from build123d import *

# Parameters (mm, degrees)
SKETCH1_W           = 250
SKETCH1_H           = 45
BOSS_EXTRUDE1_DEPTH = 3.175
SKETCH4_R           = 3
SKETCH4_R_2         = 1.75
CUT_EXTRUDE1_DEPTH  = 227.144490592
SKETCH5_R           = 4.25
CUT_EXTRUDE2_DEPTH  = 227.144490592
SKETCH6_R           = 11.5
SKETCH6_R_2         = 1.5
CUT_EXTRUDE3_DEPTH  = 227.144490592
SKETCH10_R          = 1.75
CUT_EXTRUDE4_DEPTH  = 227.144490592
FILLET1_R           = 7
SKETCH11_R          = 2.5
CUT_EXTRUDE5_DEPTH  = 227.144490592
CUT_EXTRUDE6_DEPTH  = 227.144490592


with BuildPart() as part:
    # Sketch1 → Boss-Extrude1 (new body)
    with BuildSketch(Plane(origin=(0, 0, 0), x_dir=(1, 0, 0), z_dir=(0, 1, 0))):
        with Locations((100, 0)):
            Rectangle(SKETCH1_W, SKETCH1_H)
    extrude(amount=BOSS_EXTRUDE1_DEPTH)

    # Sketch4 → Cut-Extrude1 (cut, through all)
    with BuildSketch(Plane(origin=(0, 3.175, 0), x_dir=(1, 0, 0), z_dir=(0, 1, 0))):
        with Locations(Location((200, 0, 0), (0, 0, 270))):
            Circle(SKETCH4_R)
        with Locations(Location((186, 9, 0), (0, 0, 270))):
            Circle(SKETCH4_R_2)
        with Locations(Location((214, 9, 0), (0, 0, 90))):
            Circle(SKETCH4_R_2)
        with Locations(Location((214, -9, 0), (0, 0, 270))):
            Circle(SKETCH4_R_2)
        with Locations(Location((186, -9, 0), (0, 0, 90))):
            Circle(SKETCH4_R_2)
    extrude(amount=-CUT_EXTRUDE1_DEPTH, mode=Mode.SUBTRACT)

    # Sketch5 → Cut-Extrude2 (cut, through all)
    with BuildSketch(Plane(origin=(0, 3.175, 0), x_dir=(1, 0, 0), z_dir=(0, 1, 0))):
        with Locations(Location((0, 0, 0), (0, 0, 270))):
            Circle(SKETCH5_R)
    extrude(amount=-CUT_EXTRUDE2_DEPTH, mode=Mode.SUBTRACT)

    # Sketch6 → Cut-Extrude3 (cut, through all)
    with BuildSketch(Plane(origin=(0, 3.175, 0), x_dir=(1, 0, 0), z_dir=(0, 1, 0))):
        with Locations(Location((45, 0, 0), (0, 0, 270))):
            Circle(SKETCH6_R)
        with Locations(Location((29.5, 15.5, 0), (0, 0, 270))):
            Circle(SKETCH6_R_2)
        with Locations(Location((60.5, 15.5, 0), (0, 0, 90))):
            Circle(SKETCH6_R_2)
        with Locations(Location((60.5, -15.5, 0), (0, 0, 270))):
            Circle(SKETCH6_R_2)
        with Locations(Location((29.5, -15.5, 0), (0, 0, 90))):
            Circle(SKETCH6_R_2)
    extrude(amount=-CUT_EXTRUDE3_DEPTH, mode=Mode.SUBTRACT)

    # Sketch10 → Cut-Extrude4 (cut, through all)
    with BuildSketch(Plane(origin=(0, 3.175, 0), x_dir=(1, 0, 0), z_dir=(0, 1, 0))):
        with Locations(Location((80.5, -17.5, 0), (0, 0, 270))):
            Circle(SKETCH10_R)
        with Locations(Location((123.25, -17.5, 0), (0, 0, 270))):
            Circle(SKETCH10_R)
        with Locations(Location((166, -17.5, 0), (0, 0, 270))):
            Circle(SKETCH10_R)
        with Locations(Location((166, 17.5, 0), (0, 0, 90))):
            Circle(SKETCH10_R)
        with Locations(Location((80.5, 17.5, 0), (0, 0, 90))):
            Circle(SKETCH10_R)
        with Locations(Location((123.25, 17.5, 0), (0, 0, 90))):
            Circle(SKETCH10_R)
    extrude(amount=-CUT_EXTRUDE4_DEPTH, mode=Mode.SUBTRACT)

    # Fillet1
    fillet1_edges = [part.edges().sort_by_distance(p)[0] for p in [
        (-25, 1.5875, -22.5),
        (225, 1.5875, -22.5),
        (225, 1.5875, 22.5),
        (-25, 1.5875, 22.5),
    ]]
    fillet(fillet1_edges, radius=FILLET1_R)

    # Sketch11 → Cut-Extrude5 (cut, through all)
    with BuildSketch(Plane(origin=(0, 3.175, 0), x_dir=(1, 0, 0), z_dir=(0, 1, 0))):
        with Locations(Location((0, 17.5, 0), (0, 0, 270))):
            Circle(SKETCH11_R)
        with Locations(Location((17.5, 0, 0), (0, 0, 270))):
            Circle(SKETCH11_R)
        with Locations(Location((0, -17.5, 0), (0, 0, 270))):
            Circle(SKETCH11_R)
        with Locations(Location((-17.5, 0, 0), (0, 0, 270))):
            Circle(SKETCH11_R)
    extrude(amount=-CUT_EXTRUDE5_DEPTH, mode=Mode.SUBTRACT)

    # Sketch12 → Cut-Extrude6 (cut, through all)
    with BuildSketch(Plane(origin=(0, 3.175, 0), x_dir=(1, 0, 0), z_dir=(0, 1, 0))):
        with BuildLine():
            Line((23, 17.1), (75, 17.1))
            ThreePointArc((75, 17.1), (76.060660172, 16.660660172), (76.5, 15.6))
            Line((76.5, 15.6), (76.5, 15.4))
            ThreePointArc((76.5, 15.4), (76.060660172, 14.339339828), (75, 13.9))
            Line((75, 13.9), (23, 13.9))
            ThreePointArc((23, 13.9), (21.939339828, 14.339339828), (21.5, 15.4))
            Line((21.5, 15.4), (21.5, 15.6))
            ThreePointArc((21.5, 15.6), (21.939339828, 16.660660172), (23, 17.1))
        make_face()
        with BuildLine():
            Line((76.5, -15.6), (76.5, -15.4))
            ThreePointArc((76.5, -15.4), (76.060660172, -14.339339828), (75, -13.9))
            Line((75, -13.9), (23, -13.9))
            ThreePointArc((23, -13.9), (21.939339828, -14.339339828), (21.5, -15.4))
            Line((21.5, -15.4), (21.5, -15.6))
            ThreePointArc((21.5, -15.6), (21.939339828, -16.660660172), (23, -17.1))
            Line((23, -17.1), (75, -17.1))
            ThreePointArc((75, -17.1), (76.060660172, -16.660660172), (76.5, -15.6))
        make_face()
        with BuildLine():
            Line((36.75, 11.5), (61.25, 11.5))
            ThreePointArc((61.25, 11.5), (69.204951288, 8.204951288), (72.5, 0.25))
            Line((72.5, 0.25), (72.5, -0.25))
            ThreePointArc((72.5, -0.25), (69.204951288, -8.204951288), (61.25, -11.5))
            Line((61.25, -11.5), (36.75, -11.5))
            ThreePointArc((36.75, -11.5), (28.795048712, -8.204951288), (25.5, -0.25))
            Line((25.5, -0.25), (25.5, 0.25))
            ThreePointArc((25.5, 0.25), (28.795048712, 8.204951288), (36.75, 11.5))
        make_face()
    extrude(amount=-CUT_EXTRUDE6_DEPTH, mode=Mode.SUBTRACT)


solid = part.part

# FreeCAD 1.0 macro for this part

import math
import FreeCAD as App
import Part
import Sketcher
from FreeCAD import Vector
Q = App.Units.Quantity


def edges_at(feature, points):
    """Names of the edges that pass closest to the given points."""
    edges = feature.Shape.Edges
    near = lambda p: min(range(len(edges)), key=lambda i: edges[i].distToShape(Part.Vertex(*p))[0])
    return sorted({f"Edge{near(p) + 1}" for p in points})

doc = App.newDocument("Part")
params = doc.addObject("Spreadsheet::Sheet", "Params")
for row, (alias, value) in enumerate([
    ("sketch1_width", "250 mm"),
    ("sketch1_height", "45 mm"),
    ("pad1_length", "3.175 mm"),
    ("sketch2_diameter", "6 mm"),
    ("sketch2_diameter2", "3.5 mm"),
    ("sketch3_diameter", "8.5 mm"),
    ("sketch4_diameter", "23 mm"),
    ("sketch4_diameter2", "3 mm"),
    ("sketch5_diameter", "3.5 mm"),
    ("fillet_radius", "7 mm"),
    ("sketch6_diameter", "5 mm"),
    ("sketch7_radius", "1.5 mm"),
    ("sketch7_width", "52 mm"),
    ("sketch7_radius2", "11.25 mm"),
    ("sketch7_width2", "24.5 mm"),
    ("sketch7_height", "0.2 mm"),
], start=1):
    params.set(f"A{row}", alias)
    params.set(f"B{row}", "=" + value)
    params.setAlias(f"B{row}", alias)

body = doc.addObject("PartDesign::Body", "Body")

sketch1 = body.newObject("Sketcher::SketchObject", "Sketch")
sketch1.AttachmentSupport = (doc.getObject("XZ_Plane"), [""])
sketch1.MapMode = "FlatFace"
sketch1.addGeometry(Part.LineSegment(Vector(-25, -22, 0), Vector(-25, 22, 0)), False)
sketch1.addGeometry(Part.LineSegment(Vector(-25, 22, 0), Vector(225, 22, 0)), False)
sketch1.addGeometry(Part.LineSegment(Vector(225, 22, 0), Vector(225, -22, 0)), False)
sketch1.addGeometry(Part.LineSegment(Vector(225, -22, 0), Vector(-25, -22, 0)), False)
sketch1.addConstraint(Sketcher.Constraint("Coincident", 0, 2, 1, 1))
sketch1.addConstraint(Sketcher.Constraint("Coincident", 1, 2, 2, 1))
sketch1.addConstraint(Sketcher.Constraint("Coincident", 2, 2, 3, 1))
sketch1.addConstraint(Sketcher.Constraint("Coincident", 3, 2, 0, 1))
sketch1.addConstraint(Sketcher.Constraint("Vertical", 0))
sketch1.addConstraint(Sketcher.Constraint("Horizontal", 1))
sketch1.addConstraint(Sketcher.Constraint("Vertical", 2))
sketch1.addConstraint(Sketcher.Constraint("Horizontal", 3))
sketch1.addConstraint(Sketcher.Constraint("DistanceX", 1, 1, 1, 2, Q("250 mm")))
sketch1.addConstraint(Sketcher.Constraint("DistanceY", 0, 1, 0, 2, Q("45 mm")))
sketch1.addConstraint(Sketcher.Constraint("DistanceX", 0, 2, -1, 1, Q("25 mm")))
sketch1.addConstraint(Sketcher.Constraint("DistanceY", -1, 1, 0, 2, Q("22.5 mm")))
sketch1.setExpression("Constraints[8]", "Params.sketch1_width")
sketch1.setExpression("Constraints[9]", "Params.sketch1_height")
pad1 = body.newObject("PartDesign::Pad", "Pad")
pad1.Profile = sketch1
pad1.setExpression("Length", "Params.pad1_length")
pad1.Reversed = True

sketch2 = body.newObject("Sketcher::SketchObject", "Sketch001")
sketch2.AttachmentSupport = (doc.getObject("XZ_Plane"), [""])
sketch2.MapMode = "FlatFace"
sketch2.AttachmentOffset = App.Placement(Vector(0, 0, -3.175), App.Rotation())
sketch2.addGeometry(Part.Circle(Vector(200, 0, 0), Vector(0, 0, 1), 3), False)
sketch2.addGeometry(Part.Circle(Vector(186, -9, 0), Vector(0, 0, 1), 1.8), False)
sketch2.addGeometry(Part.Circle(Vector(214, -9, 0), Vector(0, 0, 1), 1.8), False)
sketch2.addGeometry(Part.Circle(Vector(214, 9, 0), Vector(0, 0, 1), 1.8), False)
sketch2.addGeometry(Part.Circle(Vector(186, 9, 0), Vector(0, 0, 1), 1.8), False)
sketch2.addConstraint(Sketcher.Constraint("Equal", 1, 2))
sketch2.addConstraint(Sketcher.Constraint("Equal", 2, 3))
sketch2.addConstraint(Sketcher.Constraint("Equal", 3, 4))
sketch2.addConstraint(Sketcher.Constraint("Symmetric", 2, 3, 3, 3, -1))
sketch2.addConstraint(Sketcher.Constraint("Symmetric", 1, 3, 4, 3, -1))
sketch2.addConstraint(Sketcher.Constraint("PointOnObject", 0, 3, -1))
sketch2.addConstraint(Sketcher.Constraint("Horizontal", 1, 3, 2, 3))
sketch2.addConstraint(Sketcher.Constraint("Diameter", 0, Q("6 mm")))
sketch2.addConstraint(Sketcher.Constraint("Diameter", 1, Q("3.5 mm")))
sketch2.addConstraint(Sketcher.Constraint("DistanceX", -1, 1, 0, 3, Q("200 mm")))
sketch2.addConstraint(Sketcher.Constraint("DistanceX", -1, 1, 1, 3, Q("186 mm")))
sketch2.addConstraint(Sketcher.Constraint("DistanceY", 1, 3, -1, 1, Q("9 mm")))
sketch2.addConstraint(Sketcher.Constraint("DistanceX", -1, 1, 2, 3, Q("214 mm")))
sketch2.setExpression("Constraints[7]", "Params.sketch2_diameter")
sketch2.setExpression("Constraints[8]", "Params.sketch2_diameter2")
pocket1 = body.newObject("PartDesign::Pocket", "Pocket")
pocket1.Profile = sketch2
pocket1.Type = "ThroughAll"
pocket1.Reversed = True

sketch3 = body.newObject("Sketcher::SketchObject", "Sketch002")
sketch3.AttachmentSupport = (doc.getObject("XZ_Plane"), [""])
sketch3.MapMode = "FlatFace"
sketch3.AttachmentOffset = App.Placement(Vector(0, 0, -3.175), App.Rotation())
sketch3.addGeometry(Part.Circle(Vector(0, 0, 0), Vector(0, 0, 1), 4.2), False)
sketch3.addConstraint(Sketcher.Constraint("Coincident", 0, 3, -1, 1))
sketch3.addConstraint(Sketcher.Constraint("Diameter", 0, Q("8.5 mm")))
sketch3.setExpression("Constraints[1]", "Params.sketch3_diameter")
pocket2 = body.newObject("PartDesign::Pocket", "Pocket001")
pocket2.Profile = sketch3
pocket2.Type = "ThroughAll"
pocket2.Reversed = True

sketch4 = body.newObject("Sketcher::SketchObject", "Sketch003")
sketch4.AttachmentSupport = (doc.getObject("XZ_Plane"), [""])
sketch4.MapMode = "FlatFace"
sketch4.AttachmentOffset = App.Placement(Vector(0, 0, -3.175), App.Rotation())
sketch4.addGeometry(Part.Circle(Vector(45, 0, 0), Vector(0, 0, 1), 11.5), False)
sketch4.addGeometry(Part.Circle(Vector(29.5, -15.5, 0), Vector(0, 0, 1), 1.5), False)
sketch4.addGeometry(Part.Circle(Vector(60.5, -15.5, 0), Vector(0, 0, 1), 1.5), False)
sketch4.addGeometry(Part.Circle(Vector(60.5, 15.5, 0), Vector(0, 0, 1), 1.5), False)
sketch4.addGeometry(Part.Circle(Vector(29.5, 15.5, 0), Vector(0, 0, 1), 1.5), False)
sketch4.addConstraint(Sketcher.Constraint("Equal", 1, 2))
sketch4.addConstraint(Sketcher.Constraint("Equal", 2, 3))
sketch4.addConstraint(Sketcher.Constraint("Equal", 3, 4))
sketch4.addConstraint(Sketcher.Constraint("Symmetric", 2, 3, 3, 3, -1))
sketch4.addConstraint(Sketcher.Constraint("Symmetric", 1, 3, 4, 3, -1))
sketch4.addConstraint(Sketcher.Constraint("PointOnObject", 0, 3, -1))
sketch4.addConstraint(Sketcher.Constraint("Horizontal", 1, 3, 2, 3))
sketch4.addConstraint(Sketcher.Constraint("Diameter", 0, Q("23 mm")))
sketch4.addConstraint(Sketcher.Constraint("Diameter", 1, Q("3 mm")))
sketch4.addConstraint(Sketcher.Constraint("DistanceX", -1, 1, 0, 3, Q("45 mm")))
sketch4.addConstraint(Sketcher.Constraint("DistanceX", 1, 3, 2, 3, Q("31 mm")))
sketch4.addConstraint(Sketcher.Constraint("DistanceY", 2, 3, 3, 3, Q("31 mm")))
sketch4.addConstraint(Sketcher.Constraint("DistanceX", -1, 1, 1, 3, Q("29.5 mm")))
sketch4.setExpression("Constraints[7]", "Params.sketch4_diameter")
sketch4.setExpression("Constraints[8]", "Params.sketch4_diameter2")
pocket3 = body.newObject("PartDesign::Pocket", "Pocket002")
pocket3.Profile = sketch4
pocket3.Type = "ThroughAll"
pocket3.Reversed = True

sketch5 = body.newObject("Sketcher::SketchObject", "Sketch004")
sketch5.AttachmentSupport = (doc.getObject("XZ_Plane"), [""])
sketch5.MapMode = "FlatFace"
sketch5.AttachmentOffset = App.Placement(Vector(0, 0, -3.175), App.Rotation())
sketch5.addGeometry(Part.Circle(Vector(80.5, 17.5, 0), Vector(0, 0, 1), 1.8), False)
sketch5.addGeometry(Part.Circle(Vector(123.2, 17.5, 0), Vector(0, 0, 1), 1.8), False)
sketch5.addGeometry(Part.Circle(Vector(166, 17.5, 0), Vector(0, 0, 1), 1.8), False)
sketch5.addGeometry(Part.Circle(Vector(166, -17.5, 0), Vector(0, 0, 1), 1.8), False)
sketch5.addGeometry(Part.Circle(Vector(80.5, -17.5, 0), Vector(0, 0, 1), 1.8), False)
sketch5.addGeometry(Part.Circle(Vector(123.2, -17.5, 0), Vector(0, 0, 1), 1.8), False)
sketch5.addConstraint(Sketcher.Constraint("Equal", 0, 1))
sketch5.addConstraint(Sketcher.Constraint("Equal", 1, 2))
sketch5.addConstraint(Sketcher.Constraint("Equal", 2, 3))
sketch5.addConstraint(Sketcher.Constraint("Equal", 3, 4))
sketch5.addConstraint(Sketcher.Constraint("Equal", 4, 5))
sketch5.addConstraint(Sketcher.Constraint("Symmetric", 2, 3, 3, 3, -1))
sketch5.addConstraint(Sketcher.Constraint("Symmetric", 0, 3, 4, 3, -1))
sketch5.addConstraint(Sketcher.Constraint("Symmetric", 1, 3, 5, 3, -1))
sketch5.addConstraint(Sketcher.Constraint("Horizontal", 0, 3, 1, 3))
sketch5.addConstraint(Sketcher.Constraint("Horizontal", 1, 3, 2, 3))
sketch5.addConstraint(Sketcher.Constraint("Diameter", 0, Q("3.5 mm")))
sketch5.addConstraint(Sketcher.Constraint("DistanceX", -1, 1, 2, 3, Q("166 mm")))
sketch5.addConstraint(Sketcher.Constraint("DistanceY", 3, 3, 2, 3, Q("35 mm")))
sketch5.addConstraint(Sketcher.Constraint("DistanceX", -1, 1, 0, 3, Q("80.5 mm")))
sketch5.addConstraint(Sketcher.Constraint("DistanceX", -1, 1, 1, 3, Q("123.25 mm")))
sketch5.setExpression("Constraints[10]", "Params.sketch5_diameter")
pocket4 = body.newObject("PartDesign::Pocket", "Pocket003")
pocket4.Profile = sketch5
pocket4.Type = "ThroughAll"
pocket4.Reversed = True
doc.recompute()

fillet = body.newObject("PartDesign::Fillet", "Fillet")
fillet.Base = (pocket4, edges_at(pocket4, [
    (-25, 1.587, -22.5),
    (225, 1.587, -22.5),
    (225, 1.587, 22.5),
    (-25, 1.587, 22.5),
]))
fillet.setExpression("Radius", "Params.fillet_radius")

sketch6 = body.newObject("Sketcher::SketchObject", "Sketch005")
sketch6.AttachmentSupport = (doc.getObject("XZ_Plane"), [""])
sketch6.MapMode = "FlatFace"
sketch6.AttachmentOffset = App.Placement(Vector(0, 0, -3.175), App.Rotation())
sketch6.addGeometry(Part.Circle(Vector(0, -17.5, 0), Vector(0, 0, 1), 2.5), False)
sketch6.addGeometry(Part.Circle(Vector(17.5, 0, 0), Vector(0, 0, 1), 2.5), False)
sketch6.addGeometry(Part.Circle(Vector(0, 17.5, 0), Vector(0, 0, 1), 2.5), False)
sketch6.addGeometry(Part.Circle(Vector(-17.5, 0, 0), Vector(0, 0, 1), 2.5), False)
sketch6.addConstraint(Sketcher.Constraint("Equal", 0, 1))
sketch6.addConstraint(Sketcher.Constraint("Equal", 1, 2))
sketch6.addConstraint(Sketcher.Constraint("Equal", 2, 3))
sketch6.addConstraint(Sketcher.Constraint("Symmetric", 0, 3, 2, 3, -1, 1))
sketch6.addConstraint(Sketcher.Constraint("Symmetric", 1, 3, 3, 3, -1, 1))
sketch6.addConstraint(Sketcher.Constraint("PointOnObject", 0, 3, -2))
sketch6.addConstraint(Sketcher.Constraint("PointOnObject", 1, 3, -1))
sketch6.addConstraint(Sketcher.Constraint("Diameter", 0, Q("5 mm")))
sketch6.addConstraint(Sketcher.Constraint("DistanceY", 0, 3, 2, 3, Q("35 mm")))
sketch6.addConstraint(Sketcher.Constraint("DistanceX", 3, 3, 1, 3, Q("35 mm")))
sketch6.setExpression("Constraints[7]", "Params.sketch6_diameter")
pocket5 = body.newObject("PartDesign::Pocket", "Pocket004")
pocket5.Profile = sketch6
pocket5.Type = "ThroughAll"
pocket5.Reversed = True

sketch7 = body.newObject("Sketcher::SketchObject", "Sketch006")
sketch7.AttachmentSupport = (doc.getObject("XZ_Plane"), [""])
sketch7.MapMode = "FlatFace"
sketch7.AttachmentOffset = App.Placement(Vector(0, 0, -3.175), App.Rotation())
sketch7.addGeometry(Part.LineSegment(Vector(75, -17.1, 0), Vector(23, -17.1, 0)), False)
sketch7.addGeometry(Part.ArcOfCircle(Part.Circle(Vector(23, -15.6, 0), Vector(0, 0, 1), 1.5), math.radians(180), math.radians(270)), False)
sketch7.addGeometry(Part.LineSegment(Vector(21.5, -15.6, 0), Vector(21.5, -15.4, 0)), False)
sketch7.addGeometry(Part.ArcOfCircle(Part.Circle(Vector(23, -15.4, 0), Vector(0, 0, 1), 1.5), math.radians(90), math.radians(180)), False)
sketch7.addGeometry(Part.LineSegment(Vector(23, -13.9, 0), Vector(75, -13.9, 0)), False)
sketch7.addGeometry(Part.ArcOfCircle(Part.Circle(Vector(75, -15.4, 0), Vector(0, 0, 1), 1.5), math.radians(0), math.radians(90)), False)
sketch7.addGeometry(Part.LineSegment(Vector(76.5, -15.4, 0), Vector(76.5, -15.6, 0)), False)
sketch7.addGeometry(Part.ArcOfCircle(Part.Circle(Vector(75, -15.6, 0), Vector(0, 0, 1), 1.5), math.radians(-90), math.radians(0)), False)
sketch7.addGeometry(Part.LineSegment(Vector(76.5, 15.6, 0), Vector(76.5, 15.4, 0)), False)
sketch7.addGeometry(Part.ArcOfCircle(Part.Circle(Vector(75, 15.4, 0), Vector(0, 0, 1), 1.5), math.radians(-90), math.radians(0)), False)
sketch7.addGeometry(Part.LineSegment(Vector(75, 13.9, 0), Vector(23, 13.9, 0)), False)
sketch7.addGeometry(Part.ArcOfCircle(Part.Circle(Vector(23, 15.4, 0), Vector(0, 0, 1), 1.5), math.radians(180), math.radians(270)), False)
sketch7.addGeometry(Part.LineSegment(Vector(21.5, 15.4, 0), Vector(21.5, 15.6, 0)), False)
sketch7.addGeometry(Part.ArcOfCircle(Part.Circle(Vector(23, 15.6, 0), Vector(0, 0, 1), 1.5), math.radians(90), math.radians(180)), False)
sketch7.addGeometry(Part.LineSegment(Vector(23, 17.1, 0), Vector(75, 17.1, 0)), False)
sketch7.addGeometry(Part.ArcOfCircle(Part.Circle(Vector(75, 15.6, 0), Vector(0, 0, 1), 1.5), math.radians(0), math.radians(90)), False)
sketch7.addGeometry(Part.LineSegment(Vector(61.25, -11.5, 0), Vector(36.75, -11.5, 0)), False)
sketch7.addGeometry(Part.ArcOfCircle(Part.Circle(Vector(36.75, -0.25, 0), Vector(0, 0, 1), 11.25), math.radians(-180), math.radians(-90)), False)
sketch7.addGeometry(Part.LineSegment(Vector(25.5, -0.25, 0), Vector(25.5, 0.25, 0)), False)
sketch7.addGeometry(Part.ArcOfCircle(Part.Circle(Vector(36.75, 0.25, 0), Vector(0, 0, 1), 11.25), math.radians(90), math.radians(180)), False)
sketch7.addGeometry(Part.LineSegment(Vector(36.75, 11.5, 0), Vector(61.25, 11.5, 0)), False)
sketch7.addGeometry(Part.ArcOfCircle(Part.Circle(Vector(61.25, 0.25, 0), Vector(0, 0, 1), 11.25), math.radians(0), math.radians(90)), False)
sketch7.addGeometry(Part.LineSegment(Vector(72.5, 0.25, 0), Vector(72.5, -0.25, 0)), False)
sketch7.addGeometry(Part.ArcOfCircle(Part.Circle(Vector(61.25, -0.25, 0), Vector(0, 0, 1), 11.25), math.radians(-90), math.radians(0)), False)
sketch7.addConstraint(Sketcher.Constraint("Tangent", 0, 2, 1, 2))
sketch7.addConstraint(Sketcher.Constraint("Tangent", 1, 1, 2, 1))
sketch7.addConstraint(Sketcher.Constraint("Tangent", 2, 2, 3, 2))
sketch7.addConstraint(Sketcher.Constraint("Tangent", 3, 1, 4, 1))
sketch7.addConstraint(Sketcher.Constraint("Tangent", 4, 2, 5, 2))
sketch7.addConstraint(Sketcher.Constraint("Tangent", 5, 1, 6, 1))
sketch7.addConstraint(Sketcher.Constraint("Tangent", 6, 2, 7, 2))
sketch7.addConstraint(Sketcher.Constraint("Tangent", 7, 1, 0, 1))
sketch7.addConstraint(Sketcher.Constraint("Tangent", 8, 2, 9, 2))
sketch7.addConstraint(Sketcher.Constraint("Tangent", 9, 1, 10, 1))
sketch7.addConstraint(Sketcher.Constraint("Tangent", 10, 2, 11, 2))
sketch7.addConstraint(Sketcher.Constraint("Tangent", 11, 1, 12, 1))
sketch7.addConstraint(Sketcher.Constraint("Tangent", 12, 2, 13, 2))
sketch7.addConstraint(Sketcher.Constraint("Tangent", 13, 1, 14, 1))
sketch7.addConstraint(Sketcher.Constraint("Tangent", 14, 2, 15, 2))
sketch7.addConstraint(Sketcher.Constraint("Tangent", 15, 1, 8, 1))
sketch7.addConstraint(Sketcher.Constraint("Tangent", 16, 2, 17, 2))
sketch7.addConstraint(Sketcher.Constraint("Tangent", 17, 1, 18, 1))
sketch7.addConstraint(Sketcher.Constraint("Tangent", 18, 2, 19, 2))
sketch7.addConstraint(Sketcher.Constraint("Tangent", 19, 1, 20, 1))
sketch7.addConstraint(Sketcher.Constraint("Tangent", 20, 2, 21, 2))
sketch7.addConstraint(Sketcher.Constraint("Tangent", 21, 1, 22, 1))
sketch7.addConstraint(Sketcher.Constraint("Tangent", 22, 2, 23, 2))
sketch7.addConstraint(Sketcher.Constraint("Tangent", 23, 1, 16, 1))
sketch7.addConstraint(Sketcher.Constraint("Horizontal", 0))
sketch7.addConstraint(Sketcher.Constraint("Vertical", 2))
sketch7.addConstraint(Sketcher.Constraint("Horizontal", 4))
sketch7.addConstraint(Sketcher.Constraint("Vertical", 6))
sketch7.addConstraint(Sketcher.Constraint("Vertical", 8))
sketch7.addConstraint(Sketcher.Constraint("Horizontal", 10))
sketch7.addConstraint(Sketcher.Constraint("Vertical", 12))
sketch7.addConstraint(Sketcher.Constraint("Horizontal", 14))
sketch7.addConstraint(Sketcher.Constraint("Horizontal", 16))
sketch7.addConstraint(Sketcher.Constraint("Vertical", 18))
sketch7.addConstraint(Sketcher.Constraint("Horizontal", 20))
sketch7.addConstraint(Sketcher.Constraint("Vertical", 22))
sketch7.addConstraint(Sketcher.Constraint("Equal", 1, 3))
sketch7.addConstraint(Sketcher.Constraint("Equal", 3, 5))
sketch7.addConstraint(Sketcher.Constraint("Equal", 5, 7))
sketch7.addConstraint(Sketcher.Constraint("Equal", 7, 9))
sketch7.addConstraint(Sketcher.Constraint("Equal", 9, 11))
sketch7.addConstraint(Sketcher.Constraint("Equal", 11, 13))
sketch7.addConstraint(Sketcher.Constraint("Equal", 13, 15))
sketch7.addConstraint(Sketcher.Constraint("Equal", 17, 19))
sketch7.addConstraint(Sketcher.Constraint("Equal", 19, 21))
sketch7.addConstraint(Sketcher.Constraint("Equal", 21, 23))
sketch7.addConstraint(Sketcher.Constraint("Symmetric", 5, 3, 9, 3, -1))
sketch7.addConstraint(Sketcher.Constraint("Symmetric", 1, 3, 13, 3, -1))
sketch7.addConstraint(Sketcher.Constraint("Radius", 1, Q("1.5 mm")))
sketch7.addConstraint(Sketcher.Constraint("DistanceX", 0, 2, 0, 1, Q("52 mm")))
sketch7.addConstraint(Sketcher.Constraint("Radius", 17, Q("11.25 mm")))
sketch7.addConstraint(Sketcher.Constraint("DistanceX", 16, 2, 16, 1, Q("24.5 mm")))
sketch7.addConstraint(Sketcher.Constraint("DistanceY", 2, 1, 2, 2, Q("0.2 mm")))
sketch7.addConstraint(Sketcher.Constraint("DistanceY", 18, 1, 18, 2, Q("0.5 mm")))
sketch7.addConstraint(Sketcher.Constraint("DistanceX", -1, 1, 1, 3, Q("23 mm")))
sketch7.addConstraint(Sketcher.Constraint("DistanceY", 7, 3, 9, 3, Q("31 mm")))
sketch7.addConstraint(Sketcher.Constraint("DistanceY", 16, 2, -1, 1, Q("11.5 mm")))
sketch7.addConstraint(Sketcher.Constraint("DistanceX", -1, 1, 17, 1, Q("25.5 mm")))
sketch7.setExpression("Constraints[48]", "Params.sketch7_radius")
sketch7.setExpression("Constraints[49]", "Params.sketch7_width")
sketch7.setExpression("Constraints[50]", "Params.sketch7_radius2")
sketch7.setExpression("Constraints[51]", "Params.sketch7_width2")
sketch7.setExpression("Constraints[52]", "Params.sketch7_height")
pocket6 = body.newObject("PartDesign::Pocket", "Pocket005")
pocket6.Profile = sketch7
pocket6.Type = "ThroughAll"
pocket6.Reversed = True

doc.recompute()
